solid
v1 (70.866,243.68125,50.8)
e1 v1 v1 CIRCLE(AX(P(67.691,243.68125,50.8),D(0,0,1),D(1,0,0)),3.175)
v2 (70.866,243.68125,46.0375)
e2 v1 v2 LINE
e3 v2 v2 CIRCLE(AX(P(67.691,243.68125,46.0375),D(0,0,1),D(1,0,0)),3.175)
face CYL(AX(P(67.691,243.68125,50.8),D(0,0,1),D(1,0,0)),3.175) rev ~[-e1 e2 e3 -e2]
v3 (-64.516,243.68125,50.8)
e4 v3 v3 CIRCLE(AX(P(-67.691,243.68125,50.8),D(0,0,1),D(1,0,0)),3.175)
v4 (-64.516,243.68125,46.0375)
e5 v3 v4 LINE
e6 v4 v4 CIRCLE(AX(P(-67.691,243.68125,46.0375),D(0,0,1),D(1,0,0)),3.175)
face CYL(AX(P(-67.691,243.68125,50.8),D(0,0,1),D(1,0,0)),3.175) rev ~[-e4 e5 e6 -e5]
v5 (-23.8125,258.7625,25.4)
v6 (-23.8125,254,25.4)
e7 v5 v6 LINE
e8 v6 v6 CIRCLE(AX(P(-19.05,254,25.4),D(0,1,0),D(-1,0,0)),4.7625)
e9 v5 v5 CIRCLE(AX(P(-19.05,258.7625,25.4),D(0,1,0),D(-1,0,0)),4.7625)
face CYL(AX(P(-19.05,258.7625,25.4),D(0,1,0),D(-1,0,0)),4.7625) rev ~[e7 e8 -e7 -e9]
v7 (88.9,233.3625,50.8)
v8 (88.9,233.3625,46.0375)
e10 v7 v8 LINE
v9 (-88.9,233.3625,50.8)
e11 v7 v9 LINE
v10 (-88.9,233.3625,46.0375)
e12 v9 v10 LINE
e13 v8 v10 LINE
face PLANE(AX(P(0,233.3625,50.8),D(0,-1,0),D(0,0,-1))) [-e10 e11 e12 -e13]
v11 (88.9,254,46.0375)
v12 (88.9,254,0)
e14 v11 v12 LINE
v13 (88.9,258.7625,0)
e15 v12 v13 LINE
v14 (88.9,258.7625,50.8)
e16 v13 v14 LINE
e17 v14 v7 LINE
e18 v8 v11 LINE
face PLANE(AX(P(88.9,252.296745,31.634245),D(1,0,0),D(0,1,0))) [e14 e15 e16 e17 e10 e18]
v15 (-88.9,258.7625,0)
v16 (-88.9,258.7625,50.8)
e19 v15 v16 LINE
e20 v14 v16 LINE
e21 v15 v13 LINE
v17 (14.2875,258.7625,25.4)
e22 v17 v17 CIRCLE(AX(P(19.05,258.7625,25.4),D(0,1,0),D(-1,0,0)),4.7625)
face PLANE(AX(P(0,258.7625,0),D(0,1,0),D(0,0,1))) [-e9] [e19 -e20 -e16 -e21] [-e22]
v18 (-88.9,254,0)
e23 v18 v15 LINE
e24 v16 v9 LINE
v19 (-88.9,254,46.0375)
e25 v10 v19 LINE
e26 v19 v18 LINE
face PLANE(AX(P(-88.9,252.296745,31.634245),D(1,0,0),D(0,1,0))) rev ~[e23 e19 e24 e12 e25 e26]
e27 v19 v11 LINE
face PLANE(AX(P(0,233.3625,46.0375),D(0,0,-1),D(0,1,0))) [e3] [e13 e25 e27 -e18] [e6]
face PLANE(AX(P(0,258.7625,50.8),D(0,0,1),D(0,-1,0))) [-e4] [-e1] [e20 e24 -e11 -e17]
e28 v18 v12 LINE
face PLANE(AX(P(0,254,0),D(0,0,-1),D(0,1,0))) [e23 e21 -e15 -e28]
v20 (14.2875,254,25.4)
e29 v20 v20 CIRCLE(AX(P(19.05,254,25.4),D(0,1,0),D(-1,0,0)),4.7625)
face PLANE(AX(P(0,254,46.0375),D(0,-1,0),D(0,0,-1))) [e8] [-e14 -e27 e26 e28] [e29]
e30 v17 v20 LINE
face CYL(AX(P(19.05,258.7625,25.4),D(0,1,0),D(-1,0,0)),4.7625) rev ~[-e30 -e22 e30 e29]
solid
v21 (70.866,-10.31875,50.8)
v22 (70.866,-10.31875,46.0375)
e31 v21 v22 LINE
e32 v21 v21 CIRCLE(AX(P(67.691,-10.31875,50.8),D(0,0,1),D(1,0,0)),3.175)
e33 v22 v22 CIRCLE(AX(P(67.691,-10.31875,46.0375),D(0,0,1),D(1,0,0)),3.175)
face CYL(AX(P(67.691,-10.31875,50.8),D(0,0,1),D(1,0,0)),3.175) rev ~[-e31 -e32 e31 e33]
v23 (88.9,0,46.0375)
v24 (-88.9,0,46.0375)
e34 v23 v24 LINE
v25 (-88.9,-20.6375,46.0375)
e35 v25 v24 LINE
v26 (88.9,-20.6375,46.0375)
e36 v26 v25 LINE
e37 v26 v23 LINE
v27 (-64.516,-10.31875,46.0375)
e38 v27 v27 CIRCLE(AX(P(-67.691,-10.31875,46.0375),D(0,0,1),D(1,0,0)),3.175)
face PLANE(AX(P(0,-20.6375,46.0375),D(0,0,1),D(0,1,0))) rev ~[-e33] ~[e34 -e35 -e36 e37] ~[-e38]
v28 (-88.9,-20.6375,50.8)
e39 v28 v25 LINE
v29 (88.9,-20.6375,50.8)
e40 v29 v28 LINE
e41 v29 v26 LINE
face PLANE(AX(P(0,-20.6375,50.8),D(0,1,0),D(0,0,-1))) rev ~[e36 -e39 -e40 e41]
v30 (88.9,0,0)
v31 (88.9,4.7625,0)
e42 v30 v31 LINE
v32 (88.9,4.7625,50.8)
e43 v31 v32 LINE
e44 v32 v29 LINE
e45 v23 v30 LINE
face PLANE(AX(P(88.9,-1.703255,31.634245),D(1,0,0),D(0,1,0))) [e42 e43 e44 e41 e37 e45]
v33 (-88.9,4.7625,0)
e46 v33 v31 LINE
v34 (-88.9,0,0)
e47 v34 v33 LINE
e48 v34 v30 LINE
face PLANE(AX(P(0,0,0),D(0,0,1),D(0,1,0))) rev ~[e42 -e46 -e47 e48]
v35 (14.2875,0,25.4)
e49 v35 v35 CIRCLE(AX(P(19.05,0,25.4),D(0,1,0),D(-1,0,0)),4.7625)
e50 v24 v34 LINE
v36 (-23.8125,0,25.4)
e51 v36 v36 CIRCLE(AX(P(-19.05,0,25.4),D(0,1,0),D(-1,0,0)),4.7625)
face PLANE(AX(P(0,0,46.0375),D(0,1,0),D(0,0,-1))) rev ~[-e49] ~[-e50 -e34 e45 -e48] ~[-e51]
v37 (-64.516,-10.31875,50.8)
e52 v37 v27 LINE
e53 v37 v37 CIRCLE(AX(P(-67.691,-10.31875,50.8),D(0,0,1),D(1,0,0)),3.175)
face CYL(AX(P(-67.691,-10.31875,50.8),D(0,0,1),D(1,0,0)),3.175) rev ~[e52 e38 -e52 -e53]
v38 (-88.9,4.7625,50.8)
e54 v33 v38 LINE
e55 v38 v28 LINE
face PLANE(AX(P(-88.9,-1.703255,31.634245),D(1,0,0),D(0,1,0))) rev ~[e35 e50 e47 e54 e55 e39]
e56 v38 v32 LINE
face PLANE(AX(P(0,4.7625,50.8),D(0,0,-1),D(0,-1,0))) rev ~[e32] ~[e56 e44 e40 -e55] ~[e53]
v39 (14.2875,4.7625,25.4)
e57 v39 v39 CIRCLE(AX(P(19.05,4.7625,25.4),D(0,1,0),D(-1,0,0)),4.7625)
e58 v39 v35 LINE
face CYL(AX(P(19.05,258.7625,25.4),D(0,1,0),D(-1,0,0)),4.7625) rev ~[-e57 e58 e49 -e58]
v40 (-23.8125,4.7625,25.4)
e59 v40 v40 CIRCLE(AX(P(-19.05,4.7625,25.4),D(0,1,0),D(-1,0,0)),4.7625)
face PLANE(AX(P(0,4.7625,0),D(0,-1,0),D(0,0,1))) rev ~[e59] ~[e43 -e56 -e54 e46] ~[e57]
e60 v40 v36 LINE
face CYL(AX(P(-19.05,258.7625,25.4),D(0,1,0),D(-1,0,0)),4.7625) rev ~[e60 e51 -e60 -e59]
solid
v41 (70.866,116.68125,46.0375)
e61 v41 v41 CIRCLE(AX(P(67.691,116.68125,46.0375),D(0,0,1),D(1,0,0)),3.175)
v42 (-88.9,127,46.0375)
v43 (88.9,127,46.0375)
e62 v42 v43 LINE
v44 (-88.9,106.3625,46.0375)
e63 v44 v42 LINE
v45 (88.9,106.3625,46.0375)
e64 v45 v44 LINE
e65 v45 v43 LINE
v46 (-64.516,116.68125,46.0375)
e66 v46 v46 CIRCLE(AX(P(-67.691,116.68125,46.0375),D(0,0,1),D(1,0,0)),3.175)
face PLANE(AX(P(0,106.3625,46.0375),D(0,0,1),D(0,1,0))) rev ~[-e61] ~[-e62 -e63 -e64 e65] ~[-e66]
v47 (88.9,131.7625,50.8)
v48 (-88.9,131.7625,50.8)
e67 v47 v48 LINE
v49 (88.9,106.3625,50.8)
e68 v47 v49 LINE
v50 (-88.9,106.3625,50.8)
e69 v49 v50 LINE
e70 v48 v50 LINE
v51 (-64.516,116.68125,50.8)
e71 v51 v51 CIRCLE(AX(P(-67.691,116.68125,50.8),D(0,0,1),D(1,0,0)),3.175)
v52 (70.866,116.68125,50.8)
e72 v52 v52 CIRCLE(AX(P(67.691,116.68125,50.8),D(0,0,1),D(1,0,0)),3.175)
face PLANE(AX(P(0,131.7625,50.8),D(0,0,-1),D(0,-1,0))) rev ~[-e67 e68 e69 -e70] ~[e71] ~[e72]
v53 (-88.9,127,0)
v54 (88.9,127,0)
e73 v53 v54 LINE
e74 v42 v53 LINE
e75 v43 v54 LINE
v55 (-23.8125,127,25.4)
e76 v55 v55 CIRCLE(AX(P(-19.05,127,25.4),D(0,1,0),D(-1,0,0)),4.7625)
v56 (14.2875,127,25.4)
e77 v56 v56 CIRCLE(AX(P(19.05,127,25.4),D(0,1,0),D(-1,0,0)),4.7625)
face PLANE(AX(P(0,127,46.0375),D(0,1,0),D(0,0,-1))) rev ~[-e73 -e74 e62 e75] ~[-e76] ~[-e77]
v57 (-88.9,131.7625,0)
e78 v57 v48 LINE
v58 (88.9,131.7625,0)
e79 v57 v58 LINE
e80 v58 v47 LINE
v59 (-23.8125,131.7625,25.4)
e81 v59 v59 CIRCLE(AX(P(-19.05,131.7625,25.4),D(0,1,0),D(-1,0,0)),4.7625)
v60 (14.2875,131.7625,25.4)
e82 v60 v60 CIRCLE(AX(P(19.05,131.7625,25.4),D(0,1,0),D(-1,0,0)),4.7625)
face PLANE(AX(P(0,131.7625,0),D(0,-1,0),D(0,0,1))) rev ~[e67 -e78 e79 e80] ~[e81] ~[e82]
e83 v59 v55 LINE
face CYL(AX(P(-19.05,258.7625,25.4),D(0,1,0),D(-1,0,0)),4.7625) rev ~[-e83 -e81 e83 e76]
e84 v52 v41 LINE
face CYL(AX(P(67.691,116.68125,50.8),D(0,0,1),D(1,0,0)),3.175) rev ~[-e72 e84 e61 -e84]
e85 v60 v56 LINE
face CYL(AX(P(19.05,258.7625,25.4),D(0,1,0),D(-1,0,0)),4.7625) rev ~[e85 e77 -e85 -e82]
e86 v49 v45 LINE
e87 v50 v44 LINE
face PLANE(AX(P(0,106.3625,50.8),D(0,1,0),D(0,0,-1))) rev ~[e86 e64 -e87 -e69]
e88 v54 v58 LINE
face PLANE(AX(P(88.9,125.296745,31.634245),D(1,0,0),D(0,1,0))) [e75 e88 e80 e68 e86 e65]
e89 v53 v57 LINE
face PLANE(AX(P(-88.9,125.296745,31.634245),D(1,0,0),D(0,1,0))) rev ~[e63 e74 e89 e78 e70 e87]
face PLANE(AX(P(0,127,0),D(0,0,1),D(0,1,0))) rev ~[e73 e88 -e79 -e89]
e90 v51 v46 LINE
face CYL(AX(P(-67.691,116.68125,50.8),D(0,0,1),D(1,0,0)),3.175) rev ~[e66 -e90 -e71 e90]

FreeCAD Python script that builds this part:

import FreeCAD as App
import Part
import Sketcher
from FreeCAD import Vector
Q = App.Units.Quantity

doc = App.newDocument("Part")
body = doc.addObject("PartDesign::Body", "Body")
body.AllowCompound = True

sketch1 = doc.addObject("Sketcher::SketchObject", "Sketch")
body.addObject(sketch1)
sketch1.AttachmentSupport = (doc.YZ_Plane, [""])
sketch1.MapMode = "FlatFace"
sketch1.addGeometry([
    Part.LineSegment(Vector(0, 46.0375, 0), Vector(0, 0, 0)),
    Part.LineSegment(Vector(0, 0, 0), Vector(4.7625, 0, 0)),
    Part.LineSegment(Vector(4.7625, 0, 0), Vector(4.7625, 50.8, 0)),
    Part.LineSegment(Vector(4.7625, 50.8, 0), Vector(-20.6375, 50.8, 0)),
    Part.LineSegment(Vector(-20.6375, 50.8, 0), Vector(-20.6375, 46.0375, 0)),
    Part.LineSegment(Vector(-20.6375, 46.0375, 0), Vector(0, 46.0375, 0)),
    Part.LineSegment(Vector(106.3625, 46.0375, 0), Vector(127, 46.0375, 0)),
    Part.LineSegment(Vector(127, 46.0375, 0), Vector(127, 0, 0)),
    Part.LineSegment(Vector(127, 0, 0), Vector(131.7625, 0, 0)),
    Part.LineSegment(Vector(131.7625, 0, 0), Vector(131.7625, 50.8, 0)),
    Part.LineSegment(Vector(131.7625, 50.8, 0), Vector(106.3625, 50.8, 0)),
    Part.LineSegment(Vector(106.3625, 50.8, 0), Vector(106.3625, 46.0375, 0)),
    Part.LineSegment(Vector(233.3625, 46.0375, 0), Vector(254, 46.0375, 0)),
    Part.LineSegment(Vector(254, 46.0375, 0), Vector(254, 0, 0)),
    Part.LineSegment(Vector(254, 0, 0), Vector(258.7625, 0, 0)),
    Part.LineSegment(Vector(258.7625, 0, 0), Vector(258.7625, 50.8, 0)),
    Part.LineSegment(Vector(258.7625, 50.8, 0), Vector(233.3625, 50.8, 0)),
    Part.LineSegment(Vector(233.3625, 50.8, 0), Vector(233.3625, 46.0375, 0)),
], False)
sketch1.addConstraint([
    Sketcher.Constraint("Coincident", 0, 2, 1, 1),
    Sketcher.Constraint("Coincident", 1, 2, 2, 1),
    Sketcher.Constraint("Coincident", 2, 2, 3, 1),
    Sketcher.Constraint("Coincident", 3, 2, 4, 1),
    Sketcher.Constraint("Coincident", 4, 2, 5, 1),
    Sketcher.Constraint("Coincident", 5, 2, 0, 1),
    Sketcher.Constraint("Coincident", 6, 2, 7, 1),
    Sketcher.Constraint("Coincident", 7, 2, 8, 1),
    Sketcher.Constraint("Coincident", 8, 2, 9, 1),
    Sketcher.Constraint("Coincident", 9, 2, 10, 1),
    Sketcher.Constraint("Coincident", 10, 2, 11, 1),
    Sketcher.Constraint("Coincident", 11, 2, 6, 1),
    Sketcher.Constraint("Coincident", 12, 2, 13, 1),
    Sketcher.Constraint("Coincident", 13, 2, 14, 1),
    Sketcher.Constraint("Coincident", 14, 2, 15, 1),
    Sketcher.Constraint("Coincident", 15, 2, 16, 1),
    Sketcher.Constraint("Coincident", 16, 2, 17, 1),
    Sketcher.Constraint("Coincident", 17, 2, 12, 1),
    Sketcher.Constraint("Vertical", 0),
    Sketcher.Constraint("Horizontal", 1),
    Sketcher.Constraint("Vertical", 2),
    Sketcher.Constraint("Horizontal", 3),
    Sketcher.Constraint("Vertical", 4),
    Sketcher.Constraint("Horizontal", 5),
    Sketcher.Constraint("Horizontal", 6),
    Sketcher.Constraint("Vertical", 7),
    Sketcher.Constraint("Horizontal", 8),
    Sketcher.Constraint("Vertical", 9),
    Sketcher.Constraint("Horizontal", 10),
    Sketcher.Constraint("Vertical", 11),
    Sketcher.Constraint("Horizontal", 12),
    Sketcher.Constraint("Vertical", 13),
    Sketcher.Constraint("Horizontal", 14),
    Sketcher.Constraint("Vertical", 15),
    Sketcher.Constraint("Horizontal", 16),
    Sketcher.Constraint("Vertical", 17),
    Sketcher.Constraint("Coincident", 0, 2, -1, 1),
    Sketcher.Constraint("PointOnObject", 7, 2, -1),
    Sketcher.Constraint("PointOnObject", 13, 2, -1),
    Sketcher.Constraint("Horizontal", 5, 2, 6, 2),
    Sketcher.Constraint("Horizontal", 3, 2, 9, 2),
    Sketcher.Constraint("Horizontal", 11, 2, 12, 2),
    Sketcher.Constraint("Horizontal", 10, 2, 15, 2),
    Sketcher.Constraint("Equal", 5, 6),
    Sketcher.Constraint("Equal", 1, 8),
    Sketcher.Constraint("Equal", 6, 12),
    Sketcher.Constraint("Equal", 8, 14),
    Sketcher.Constraint("Equal", 14, 4),
    Sketcher.Constraint("DistanceX", 3, 2, 3, 1, Q("1 in")),
    Sketcher.Constraint("DistanceY", 2, 1, 2, 2, Q("2 in")),
    Sketcher.Constraint("DistanceX", -1, 1, 6, 2, Q("5 in")),
    Sketcher.Constraint("DistanceX", -1, 1, 12, 2, Q("10 in")),
    Sketcher.Constraint("DistanceX", 1, 1, 1, 2, Q("0.1875 in")),
])
pad1 = doc.addObject("PartDesign::Pad", "Pad")
body.addObject(pad1)
pad1.Profile = sketch1
pad1.Length = Q("7 in")
pad1.Midplane = True

sketch2 = doc.addObject("Sketcher::SketchObject", "Sketch001")
body.addObject(sketch2)
sketch2.AttachmentSupport = (doc.XZ_Plane, [""])
sketch2.MapMode = "FlatFace"
sketch2.AttachmentOffset = App.Placement(Vector(0, 0, -10.1875 * 25.4), App.Rotation())
sketch2.addGeometry([
    Part.Circle(Vector(19.05, 25.4, 0), Vector(0, 0, 1), 4.7625),
    Part.Circle(Vector(-19.05, 25.4, 0), Vector(0, 0, 1), 4.7625),
], False)
sketch2.addConstraint([
    Sketcher.Constraint("Equal", 0, 1),
    Sketcher.Constraint("Symmetric", 0, 3, 1, 3, -2),
    Sketcher.Constraint("Diameter", 0, Q("0.375 in")),
    Sketcher.Constraint("DistanceY", -1, 1, 0, 3, Q("1 in")),
    Sketcher.Constraint("DistanceX", 1, 3, 0, 3, Q("1.5 in")),
])
pocket1 = doc.addObject("PartDesign::Pocket", "Pocket")
body.addObject(pocket1)
pocket1.Profile = sketch2
pocket1.Type = "ThroughAll"
pocket1.Reversed = True

sketch3 = doc.addObject("Sketcher::SketchObject", "Sketch002")
body.addObject(sketch3)
sketch3.AttachmentSupport = (doc.XY_Plane, [""])
sketch3.MapMode = "FlatFace"
sketch3.AttachmentOffset = App.Placement(Vector(0, 0, 2 * 25.4), App.Rotation())
sketch3.addGeometry([
    Part.Circle(Vector(-67.691, 243.68125, 0), Vector(0, 0, 1), 3.175),
    Part.Circle(Vector(-67.691, 116.68125, 0), Vector(0, 0, 1), 3.175),
    Part.Circle(Vector(-67.691, -10.31875, 0), Vector(0, 0, 1), 3.175),
    Part.Circle(Vector(67.691, 243.68125, 0), Vector(0, 0, 1), 3.175),
    Part.Circle(Vector(67.691, 116.68125, 0), Vector(0, 0, 1), 3.175),
    Part.Circle(Vector(67.691, -10.31875, 0), Vector(0, 0, 1), 3.175),
], False)
sketch3.addConstraint([
    Sketcher.Constraint("Equal", 0, 1),
    Sketcher.Constraint("Equal", 1, 2),
    Sketcher.Constraint("Equal", 2, 3),
    Sketcher.Constraint("Equal", 3, 4),
    Sketcher.Constraint("Equal", 4, 5),
    Sketcher.Constraint("Symmetric", 0, 3, 3, 3, -2),
    Sketcher.Constraint("Symmetric", 1, 3, 4, 3, -2),
    Sketcher.Constraint("Symmetric", 2, 3, 5, 3, -2),
    Sketcher.Constraint("Vertical", 0, 3, 1, 3),
    Sketcher.Constraint("Vertical", 1, 3, 2, 3),
    Sketcher.Constraint("Diameter", 0, Q("0.25 in")),
    Sketcher.Constraint("DistanceY", 1, 3, 0, 3, Q("5 in")),
    Sketcher.Constraint("DistanceY", 2, 3, 1, 3, Q("5 in")),
    Sketcher.Constraint("DistanceX", 0, 3, 3, 3, Q("5.33 in")),
    Sketcher.Constraint("DistanceY", -1, 1, 0, 3, Q("9.59375 in")),
])
pocket2 = doc.addObject("PartDesign::Pocket", "Pocket001")
body.addObject(pocket2)
pocket2.Profile = sketch3
pocket2.Type = "ThroughAll"

doc.recompute()
